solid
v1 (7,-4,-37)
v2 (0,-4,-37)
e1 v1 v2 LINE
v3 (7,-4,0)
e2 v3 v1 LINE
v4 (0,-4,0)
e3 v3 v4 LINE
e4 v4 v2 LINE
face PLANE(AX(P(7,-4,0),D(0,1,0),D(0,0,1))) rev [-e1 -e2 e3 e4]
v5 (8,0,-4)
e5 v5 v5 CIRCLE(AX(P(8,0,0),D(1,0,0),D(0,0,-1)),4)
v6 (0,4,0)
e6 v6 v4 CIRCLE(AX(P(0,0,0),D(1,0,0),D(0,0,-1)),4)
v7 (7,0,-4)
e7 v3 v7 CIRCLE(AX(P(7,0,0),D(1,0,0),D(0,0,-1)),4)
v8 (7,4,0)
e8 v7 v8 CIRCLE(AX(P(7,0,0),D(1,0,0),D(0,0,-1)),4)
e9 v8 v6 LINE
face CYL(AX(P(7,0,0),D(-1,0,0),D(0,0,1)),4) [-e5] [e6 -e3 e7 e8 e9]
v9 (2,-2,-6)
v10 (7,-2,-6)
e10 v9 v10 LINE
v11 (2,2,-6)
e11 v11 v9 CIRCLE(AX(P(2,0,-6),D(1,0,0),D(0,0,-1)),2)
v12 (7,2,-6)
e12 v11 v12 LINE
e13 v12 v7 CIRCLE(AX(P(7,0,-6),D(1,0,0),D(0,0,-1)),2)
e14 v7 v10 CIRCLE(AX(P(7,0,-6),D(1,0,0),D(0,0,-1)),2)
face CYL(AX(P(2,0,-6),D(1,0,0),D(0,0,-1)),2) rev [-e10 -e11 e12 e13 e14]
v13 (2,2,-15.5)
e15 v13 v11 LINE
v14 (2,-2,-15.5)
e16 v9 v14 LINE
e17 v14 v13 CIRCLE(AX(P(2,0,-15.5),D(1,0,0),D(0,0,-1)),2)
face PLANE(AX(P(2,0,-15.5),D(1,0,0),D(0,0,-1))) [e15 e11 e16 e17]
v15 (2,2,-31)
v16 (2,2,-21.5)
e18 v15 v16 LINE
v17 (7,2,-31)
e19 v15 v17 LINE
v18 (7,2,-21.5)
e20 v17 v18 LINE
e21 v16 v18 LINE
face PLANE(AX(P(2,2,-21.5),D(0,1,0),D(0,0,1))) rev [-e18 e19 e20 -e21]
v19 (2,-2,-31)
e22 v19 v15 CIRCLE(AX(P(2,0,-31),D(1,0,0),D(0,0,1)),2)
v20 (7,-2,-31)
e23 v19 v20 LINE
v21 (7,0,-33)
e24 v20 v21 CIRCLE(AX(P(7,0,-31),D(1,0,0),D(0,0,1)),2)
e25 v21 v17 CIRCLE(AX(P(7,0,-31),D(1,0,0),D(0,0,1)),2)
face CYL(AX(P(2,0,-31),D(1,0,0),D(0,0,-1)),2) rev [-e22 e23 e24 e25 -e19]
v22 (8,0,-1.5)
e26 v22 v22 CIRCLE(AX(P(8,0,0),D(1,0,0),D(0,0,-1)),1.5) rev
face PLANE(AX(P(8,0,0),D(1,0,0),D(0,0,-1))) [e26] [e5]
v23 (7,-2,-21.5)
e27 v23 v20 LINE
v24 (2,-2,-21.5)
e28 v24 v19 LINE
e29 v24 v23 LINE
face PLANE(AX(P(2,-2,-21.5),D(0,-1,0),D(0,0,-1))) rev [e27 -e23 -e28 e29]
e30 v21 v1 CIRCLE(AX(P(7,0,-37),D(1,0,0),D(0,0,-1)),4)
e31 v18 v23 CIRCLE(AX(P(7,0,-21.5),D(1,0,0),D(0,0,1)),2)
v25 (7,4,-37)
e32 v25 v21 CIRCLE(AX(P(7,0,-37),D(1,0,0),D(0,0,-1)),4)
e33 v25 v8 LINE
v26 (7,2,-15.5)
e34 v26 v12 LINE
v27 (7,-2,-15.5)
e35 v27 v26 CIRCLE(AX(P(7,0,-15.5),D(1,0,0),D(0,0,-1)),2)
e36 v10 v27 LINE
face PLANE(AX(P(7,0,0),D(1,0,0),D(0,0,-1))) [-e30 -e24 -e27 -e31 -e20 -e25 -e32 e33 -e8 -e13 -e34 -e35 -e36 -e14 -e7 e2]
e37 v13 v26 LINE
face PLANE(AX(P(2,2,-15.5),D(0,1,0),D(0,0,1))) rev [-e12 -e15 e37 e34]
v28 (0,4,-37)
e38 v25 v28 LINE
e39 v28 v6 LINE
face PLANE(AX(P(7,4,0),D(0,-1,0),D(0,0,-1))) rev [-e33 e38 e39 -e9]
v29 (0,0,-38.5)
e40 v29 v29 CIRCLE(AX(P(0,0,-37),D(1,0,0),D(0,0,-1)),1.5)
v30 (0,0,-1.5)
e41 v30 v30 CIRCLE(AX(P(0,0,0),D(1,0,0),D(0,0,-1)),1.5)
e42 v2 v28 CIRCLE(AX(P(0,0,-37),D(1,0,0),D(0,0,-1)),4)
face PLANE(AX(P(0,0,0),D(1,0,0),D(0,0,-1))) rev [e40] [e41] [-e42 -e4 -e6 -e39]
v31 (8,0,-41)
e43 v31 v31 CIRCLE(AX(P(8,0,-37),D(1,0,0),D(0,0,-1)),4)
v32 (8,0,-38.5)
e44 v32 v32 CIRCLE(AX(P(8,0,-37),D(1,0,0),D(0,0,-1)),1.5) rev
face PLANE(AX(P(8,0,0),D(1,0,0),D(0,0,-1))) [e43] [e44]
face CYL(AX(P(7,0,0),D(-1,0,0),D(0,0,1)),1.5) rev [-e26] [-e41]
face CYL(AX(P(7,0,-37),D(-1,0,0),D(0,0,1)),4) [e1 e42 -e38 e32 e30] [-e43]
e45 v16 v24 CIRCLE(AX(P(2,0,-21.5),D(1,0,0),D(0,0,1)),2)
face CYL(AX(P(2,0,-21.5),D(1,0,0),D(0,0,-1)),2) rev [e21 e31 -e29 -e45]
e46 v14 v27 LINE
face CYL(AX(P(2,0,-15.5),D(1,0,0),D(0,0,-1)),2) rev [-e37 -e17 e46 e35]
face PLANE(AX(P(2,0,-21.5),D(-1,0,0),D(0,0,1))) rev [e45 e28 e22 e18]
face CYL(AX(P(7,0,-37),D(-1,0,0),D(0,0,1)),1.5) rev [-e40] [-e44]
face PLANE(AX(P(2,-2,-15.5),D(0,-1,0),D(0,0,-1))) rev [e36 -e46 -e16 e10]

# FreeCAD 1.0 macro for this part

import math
import FreeCAD as App
import Part
import Sketcher
from FreeCAD import Vector
Q = App.Units.Quantity

doc = App.newDocument("Part")
body = doc.addObject("PartDesign::Body", "Body")

# Sketch on YZ plane
sketch1 = body.newObject("Sketcher::SketchObject", "Sketch")
sketch1.AttachmentSupport = (doc.getObject("YZ_Plane"), [""])
sketch1.MapMode = "FlatFace"
sketch1.addGeometry([
    Part.LineSegment(Vector(4, -37, 0), Vector(4, 0, 0)),  # 0
    Part.ArcOfCircle(Part.Circle(Vector(0, 0, 0), Vector(0, 0, 1), 4), math.radians(0), math.radians(180)),  # 1
    Part.LineSegment(Vector(-4, 0, 0), Vector(-4, -37, 0)),  # 2
    Part.ArcOfCircle(Part.Circle(Vector(0, -37, 0), Vector(0, 0, 1), 4), math.radians(180), math.radians(360)),  # 3
    Part.Circle(Vector(0, -37, 0), Vector(0, 0, 1), 1.5),  # 4
    Part.Circle(Vector(0, 0, 0), Vector(0, 0, 1), 1.5),  # 5
], False)
sketch1.addConstraint([
    Sketcher.Constraint("Tangent", 0, 2, 1, 1),
    Sketcher.Constraint("Tangent", 1, 2, 2, 1),
    Sketcher.Constraint("Tangent", 2, 2, 3, 1),
    Sketcher.Constraint("Tangent", 3, 2, 0, 1),
    Sketcher.Constraint("Vertical", 0),
    Sketcher.Constraint("Vertical", 2),
    Sketcher.Constraint("Coincident", 1, 3, -1, 1),
    Sketcher.Constraint("Coincident", 5, 3, -1, 1),
    Sketcher.Constraint("Coincident", 4, 3, 3, 3),
    Sketcher.Constraint("Equal", 4, 5),
    Sketcher.Constraint("Diameter", 4, Q("3 mm")),
    Sketcher.Constraint("Radius", 1, Q("4 mm")),
    Sketcher.Constraint("DistanceY", 0, 1, 0, 2, Q("37 mm")),
])
pad1 = body.newObject("PartDesign::Pad", "Pad")
pad1.Profile = sketch1
pad1.Length = 7

# Sketch on YZ plane
sketch2 = body.newObject("Sketcher::SketchObject", "Sketch001")
sketch2.AttachmentSupport = (doc.getObject("YZ_Plane"), [""])
sketch2.MapMode = "FlatFace"
sketch2.AttachmentOffset = App.Placement(Vector(0, 0, 7), App.Rotation())
sketch2.addGeometry([
    Part.LineSegment(Vector(-2, -6, 0), Vector(-2, -15.5, 0)),  # 0
    Part.ArcOfCircle(Part.Circle(Vector(0, -15.5, 0), Vector(0, 0, 1), 2), math.radians(180), math.radians(360)),  # 1
    Part.LineSegment(Vector(2, -15.5, 0), Vector(2, -6, 0)),  # 2
    Part.ArcOfCircle(Part.Circle(Vector(0, -6, 0), Vector(0, 0, 1), 2), math.radians(0), math.radians(180)),  # 3
    Part.LineSegment(Vector(-2, -21.5, 0), Vector(-2, -31, 0)),  # 4
    Part.ArcOfCircle(Part.Circle(Vector(0, -31, 0), Vector(0, 0, 1), 2), math.radians(180), math.radians(360)),  # 5
    Part.LineSegment(Vector(2, -31, 0), Vector(2, -21.5, 0)),  # 6
    Part.ArcOfCircle(Part.Circle(Vector(0, -21.5, 0), Vector(0, 0, 1), 2), math.radians(0), math.radians(180)),  # 7
], False)
sketch2.addConstraint([
    Sketcher.Constraint("Tangent", 0, 2, 1, 1),
    Sketcher.Constraint("Tangent", 1, 2, 2, 1),
    Sketcher.Constraint("Tangent", 2, 2, 3, 1),
    Sketcher.Constraint("Tangent", 3, 2, 0, 1),
    Sketcher.Constraint("Tangent", 4, 2, 5, 1),
    Sketcher.Constraint("Tangent", 5, 2, 6, 1),
    Sketcher.Constraint("Tangent", 6, 2, 7, 1),
    Sketcher.Constraint("Tangent", 7, 2, 4, 1),
    Sketcher.Constraint("Vertical", 0),
    Sketcher.Constraint("Vertical", 2),
    Sketcher.Constraint("Vertical", 4),
    Sketcher.Constraint("Vertical", 6),
    Sketcher.Constraint("Equal", 3, 5),
    Sketcher.Constraint("PointOnObject", 1, 3, -2),
    Sketcher.Constraint("PointOnObject", 5, 3, -2),
    Sketcher.Constraint("Equal", 2, 4),
    Sketcher.Constraint("Radius", 1, Q("2 mm")),
    Sketcher.Constraint("DistanceY", 0, 2, 0, 1, Q("9.5 mm")),
    Sketcher.Constraint("DistanceY", 3, 3, -1, 1, Q("6 mm")),
    Sketcher.Constraint("DistanceY", 5, 3, -1, 1, Q("31 mm")),
])
pocket1 = body.newObject("PartDesign::Pocket", "Pocket")
pocket1.Profile = sketch2
pocket1.Length = 5

# Sketch on YZ plane
sketch3 = body.newObject("Sketcher::SketchObject", "Sketch002")
sketch3.AttachmentSupport = (doc.getObject("YZ_Plane"), [""])
sketch3.MapMode = "FlatFace"
sketch3.AttachmentOffset = App.Placement(Vector(0, 0, 7), App.Rotation())
sketch3.addGeometry([
    Part.ArcOfCircle(Part.Circle(Vector(0, -37, 0), Vector(0, 0, 1), 4), math.radians(180), math.radians(270)),  # 0
    Part.ArcOfCircle(Part.Circle(Vector(0, -37, 0), Vector(0, 0, 1), 4), math.radians(-90), math.radians(0)),  # 1
    Part.ArcOfCircle(Part.Circle(Vector(0, -37, 0), Vector(0, 0, 1), 4), math.radians(0), math.radians(180)),  # 2
    Part.Circle(Vector(0, -37, 0), Vector(0, 0, 1), 1.5),  # 3
    Part.ArcOfCircle(Part.Circle(Vector(0, 0, 0), Vector(0, 0, 1), 4), math.radians(180), math.radians(270)),  # 4
    Part.ArcOfCircle(Part.Circle(Vector(0, 0, 0), Vector(0, 0, 1), 4), math.radians(-90), math.radians(0)),  # 5
    Part.ArcOfCircle(Part.Circle(Vector(0, 0, 0), Vector(0, 0, 1), 4), math.radians(0), math.radians(180)),  # 6
    Part.Circle(Vector(0, 0, 0), Vector(0, 0, 1), 1.5),  # 7
], False)
sketch3.addConstraint([
    Sketcher.Constraint("Tangent", 0, 2, 1, 1),
    Sketcher.Constraint("Tangent", 1, 2, 2, 1),
    Sketcher.Constraint("Tangent", 2, 2, 0, 1),
    Sketcher.Constraint("Tangent", 4, 2, 5, 1),
    Sketcher.Constraint("Tangent", 5, 2, 6, 1),
    Sketcher.Constraint("Tangent", 6, 2, 4, 1),
    Sketcher.Constraint("Coincident", 4, 3, -1, 1),
    Sketcher.Constraint("Coincident", 7, 3, -1, 1),
    Sketcher.Constraint("Coincident", 3, 3, 0, 3),
    Sketcher.Constraint("Equal", 2, 4),
    Sketcher.Constraint("Equal", 3, 7),
    Sketcher.Constraint("Symmetric", 1, 2, 2, 2, -2),
    Sketcher.Constraint("PointOnObject", 0, 2, -2),
    Sketcher.Constraint("PointOnObject", 4, 2, -2),
    Sketcher.Constraint("PointOnObject", 5, 2, -1),
    Sketcher.Constraint("PointOnObject", 6, 2, -1),
    Sketcher.Constraint("Horizontal", 3, 3, 1, 2),
    Sketcher.Constraint("Diameter", 3, Q("3 mm")),
    Sketcher.Constraint("Radius", 0, Q("4 mm")),
    Sketcher.Constraint("DistanceY", 0, 3, -1, 1, Q("37 mm")),
])
pad2 = body.newObject("PartDesign::Pad", "Pad001")
pad2.Profile = sketch3
pad2.Length = 1

doc.recompute()
